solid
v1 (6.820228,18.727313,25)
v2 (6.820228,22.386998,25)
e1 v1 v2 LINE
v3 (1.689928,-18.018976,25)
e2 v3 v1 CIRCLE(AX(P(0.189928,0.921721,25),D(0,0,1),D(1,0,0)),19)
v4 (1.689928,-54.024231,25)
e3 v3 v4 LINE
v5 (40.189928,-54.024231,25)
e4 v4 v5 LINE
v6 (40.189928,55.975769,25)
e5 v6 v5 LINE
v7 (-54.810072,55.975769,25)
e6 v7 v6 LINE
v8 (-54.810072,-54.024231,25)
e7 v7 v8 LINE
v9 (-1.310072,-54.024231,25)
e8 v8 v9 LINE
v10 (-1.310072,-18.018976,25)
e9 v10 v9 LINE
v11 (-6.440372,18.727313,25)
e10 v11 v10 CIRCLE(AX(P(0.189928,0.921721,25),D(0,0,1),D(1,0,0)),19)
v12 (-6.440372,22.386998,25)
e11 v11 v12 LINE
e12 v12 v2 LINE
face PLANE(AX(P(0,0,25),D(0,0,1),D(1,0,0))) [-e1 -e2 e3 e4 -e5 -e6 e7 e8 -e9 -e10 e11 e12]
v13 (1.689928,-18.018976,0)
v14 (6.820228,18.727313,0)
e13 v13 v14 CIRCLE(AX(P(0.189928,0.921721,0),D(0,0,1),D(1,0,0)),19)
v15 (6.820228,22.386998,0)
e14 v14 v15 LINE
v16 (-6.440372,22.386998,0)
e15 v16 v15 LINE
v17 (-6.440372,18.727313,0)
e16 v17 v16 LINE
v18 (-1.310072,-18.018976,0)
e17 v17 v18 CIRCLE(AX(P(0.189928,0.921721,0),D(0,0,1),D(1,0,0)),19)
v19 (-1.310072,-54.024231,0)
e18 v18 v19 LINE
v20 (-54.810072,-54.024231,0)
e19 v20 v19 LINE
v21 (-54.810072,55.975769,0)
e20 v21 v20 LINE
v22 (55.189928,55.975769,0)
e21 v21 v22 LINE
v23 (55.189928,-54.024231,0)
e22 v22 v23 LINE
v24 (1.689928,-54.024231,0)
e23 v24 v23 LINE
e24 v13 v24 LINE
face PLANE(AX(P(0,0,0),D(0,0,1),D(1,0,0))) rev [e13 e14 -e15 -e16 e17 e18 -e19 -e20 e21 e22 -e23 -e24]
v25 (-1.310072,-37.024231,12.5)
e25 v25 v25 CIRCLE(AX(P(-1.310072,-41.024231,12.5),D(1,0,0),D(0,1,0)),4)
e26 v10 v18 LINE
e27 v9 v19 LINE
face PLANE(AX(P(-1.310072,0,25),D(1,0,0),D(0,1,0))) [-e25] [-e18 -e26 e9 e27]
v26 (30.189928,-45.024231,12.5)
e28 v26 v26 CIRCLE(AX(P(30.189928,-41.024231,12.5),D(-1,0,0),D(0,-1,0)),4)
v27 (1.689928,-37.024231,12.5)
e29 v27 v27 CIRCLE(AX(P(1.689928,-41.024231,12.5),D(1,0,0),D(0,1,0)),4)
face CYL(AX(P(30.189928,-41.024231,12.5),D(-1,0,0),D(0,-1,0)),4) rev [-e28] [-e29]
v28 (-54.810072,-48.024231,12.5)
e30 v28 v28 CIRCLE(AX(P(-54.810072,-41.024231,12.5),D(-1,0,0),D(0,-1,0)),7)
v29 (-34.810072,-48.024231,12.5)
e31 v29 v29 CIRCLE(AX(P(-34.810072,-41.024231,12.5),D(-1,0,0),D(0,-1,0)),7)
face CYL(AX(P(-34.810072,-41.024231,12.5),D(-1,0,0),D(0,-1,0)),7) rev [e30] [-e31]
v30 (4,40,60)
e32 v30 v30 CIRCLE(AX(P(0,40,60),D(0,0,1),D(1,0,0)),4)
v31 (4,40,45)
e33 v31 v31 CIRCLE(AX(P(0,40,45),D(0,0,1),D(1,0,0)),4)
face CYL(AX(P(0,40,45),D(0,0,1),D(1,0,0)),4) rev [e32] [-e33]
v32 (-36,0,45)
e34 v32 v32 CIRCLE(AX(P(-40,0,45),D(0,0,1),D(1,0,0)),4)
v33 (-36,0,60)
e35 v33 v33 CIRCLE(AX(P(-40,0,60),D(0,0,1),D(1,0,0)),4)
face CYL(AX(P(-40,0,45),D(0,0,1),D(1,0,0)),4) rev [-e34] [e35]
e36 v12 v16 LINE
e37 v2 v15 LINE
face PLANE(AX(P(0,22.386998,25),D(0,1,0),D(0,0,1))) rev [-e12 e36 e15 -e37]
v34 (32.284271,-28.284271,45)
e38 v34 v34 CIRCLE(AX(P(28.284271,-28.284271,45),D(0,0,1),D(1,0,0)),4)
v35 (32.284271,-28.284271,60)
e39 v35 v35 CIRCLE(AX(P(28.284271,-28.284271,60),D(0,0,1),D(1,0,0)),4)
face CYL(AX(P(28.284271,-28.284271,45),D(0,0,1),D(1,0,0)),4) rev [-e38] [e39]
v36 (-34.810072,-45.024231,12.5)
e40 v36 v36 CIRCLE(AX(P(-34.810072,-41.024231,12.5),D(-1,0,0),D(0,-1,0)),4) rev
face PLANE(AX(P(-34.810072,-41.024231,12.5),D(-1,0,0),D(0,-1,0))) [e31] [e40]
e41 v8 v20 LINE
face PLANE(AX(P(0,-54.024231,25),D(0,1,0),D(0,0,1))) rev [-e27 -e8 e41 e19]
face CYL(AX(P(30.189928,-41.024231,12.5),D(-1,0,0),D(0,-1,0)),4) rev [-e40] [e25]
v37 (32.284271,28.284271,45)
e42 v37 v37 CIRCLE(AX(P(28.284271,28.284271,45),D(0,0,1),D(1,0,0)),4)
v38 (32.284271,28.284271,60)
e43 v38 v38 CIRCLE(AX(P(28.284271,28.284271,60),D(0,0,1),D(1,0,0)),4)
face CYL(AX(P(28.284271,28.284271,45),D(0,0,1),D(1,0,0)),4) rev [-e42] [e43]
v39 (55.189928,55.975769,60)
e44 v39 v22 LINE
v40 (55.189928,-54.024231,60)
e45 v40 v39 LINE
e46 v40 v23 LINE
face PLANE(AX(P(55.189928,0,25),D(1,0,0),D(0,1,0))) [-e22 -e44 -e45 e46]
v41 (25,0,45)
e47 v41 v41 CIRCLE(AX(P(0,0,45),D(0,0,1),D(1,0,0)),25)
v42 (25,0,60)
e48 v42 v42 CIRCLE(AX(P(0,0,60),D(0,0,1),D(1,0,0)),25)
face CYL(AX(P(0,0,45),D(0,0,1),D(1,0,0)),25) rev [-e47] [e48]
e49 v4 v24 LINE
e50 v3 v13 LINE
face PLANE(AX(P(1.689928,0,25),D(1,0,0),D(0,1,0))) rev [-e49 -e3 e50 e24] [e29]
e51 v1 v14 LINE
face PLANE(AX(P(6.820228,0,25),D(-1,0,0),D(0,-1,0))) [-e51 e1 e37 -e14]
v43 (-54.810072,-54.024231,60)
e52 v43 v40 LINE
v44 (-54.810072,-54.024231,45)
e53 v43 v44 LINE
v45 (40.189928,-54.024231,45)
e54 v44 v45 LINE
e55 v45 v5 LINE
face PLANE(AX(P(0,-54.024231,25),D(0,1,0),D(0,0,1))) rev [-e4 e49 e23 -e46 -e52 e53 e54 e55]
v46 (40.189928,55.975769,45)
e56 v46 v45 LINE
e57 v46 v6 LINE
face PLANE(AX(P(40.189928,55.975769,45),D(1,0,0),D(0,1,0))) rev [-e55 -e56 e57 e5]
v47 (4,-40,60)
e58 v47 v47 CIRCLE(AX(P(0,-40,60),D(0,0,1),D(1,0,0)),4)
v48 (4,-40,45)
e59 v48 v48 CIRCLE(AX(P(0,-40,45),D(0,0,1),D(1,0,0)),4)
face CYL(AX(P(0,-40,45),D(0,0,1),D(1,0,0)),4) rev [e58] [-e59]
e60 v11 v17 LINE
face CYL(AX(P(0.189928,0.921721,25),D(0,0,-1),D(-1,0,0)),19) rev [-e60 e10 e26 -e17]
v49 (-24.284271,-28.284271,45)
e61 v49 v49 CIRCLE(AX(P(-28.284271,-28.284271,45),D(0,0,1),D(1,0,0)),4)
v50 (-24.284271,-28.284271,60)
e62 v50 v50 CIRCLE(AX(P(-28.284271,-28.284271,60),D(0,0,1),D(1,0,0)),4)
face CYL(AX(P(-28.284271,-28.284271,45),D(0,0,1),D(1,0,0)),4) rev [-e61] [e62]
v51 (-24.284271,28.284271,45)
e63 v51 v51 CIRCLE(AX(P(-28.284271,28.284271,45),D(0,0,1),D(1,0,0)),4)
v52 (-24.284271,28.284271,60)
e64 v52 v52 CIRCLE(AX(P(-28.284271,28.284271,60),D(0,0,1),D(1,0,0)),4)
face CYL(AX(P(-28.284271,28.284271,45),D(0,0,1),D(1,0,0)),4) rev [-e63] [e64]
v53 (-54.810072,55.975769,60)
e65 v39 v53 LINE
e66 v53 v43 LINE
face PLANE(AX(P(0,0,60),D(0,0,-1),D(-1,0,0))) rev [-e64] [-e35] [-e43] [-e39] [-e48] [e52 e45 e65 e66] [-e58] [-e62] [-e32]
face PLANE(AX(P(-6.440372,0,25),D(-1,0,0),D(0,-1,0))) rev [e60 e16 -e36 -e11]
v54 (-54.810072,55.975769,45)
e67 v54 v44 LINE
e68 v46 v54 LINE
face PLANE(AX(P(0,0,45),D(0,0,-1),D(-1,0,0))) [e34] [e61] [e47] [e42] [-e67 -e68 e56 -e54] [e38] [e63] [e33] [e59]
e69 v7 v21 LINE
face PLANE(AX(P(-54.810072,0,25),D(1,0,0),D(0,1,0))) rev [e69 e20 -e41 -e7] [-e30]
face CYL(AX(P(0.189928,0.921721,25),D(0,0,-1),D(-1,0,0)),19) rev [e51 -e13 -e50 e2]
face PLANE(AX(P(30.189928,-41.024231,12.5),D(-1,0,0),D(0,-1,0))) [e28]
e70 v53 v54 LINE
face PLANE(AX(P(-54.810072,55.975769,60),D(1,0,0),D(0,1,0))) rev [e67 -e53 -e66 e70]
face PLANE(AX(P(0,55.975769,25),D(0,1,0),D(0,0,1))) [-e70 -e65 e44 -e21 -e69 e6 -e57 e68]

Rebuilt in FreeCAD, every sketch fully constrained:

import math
import FreeCAD as App
import Part
import Sketcher

V = App.Vector
Q = App.Units.Quantity


def add_polygon(sketch, points):
    """Adds a closed chain of lines whose ends are joined by coincident constraints."""
    first, n = sketch.GeometryCount, len(points)
    for a, b in zip(points, points[1:] + points[:1]):
        sketch.addGeometry(Part.LineSegment(App.Vector(*a, 0), App.Vector(*b, 0)), False)
    for i in range(n):
        sketch.addConstraint(Sketcher.Constraint("Coincident", first + i, 2, first + (i + 1) % n, 1))

doc = App.newDocument("Part")
body = doc.addObject("PartDesign::Body", "Body")

# Sketch on XY plane
sketch1 = body.newObject("Sketcher::SketchObject", "Sketch")
sketch1.AttachmentSupport = (doc.getObject("XY_Plane"), [""])
sketch1.MapMode = "FlatFace"
sketch1.addGeometry([
    Part.LineSegment(V(6.820228, 22.386998, 0), V(6.820228, 18.727313, 0)),  # 0
    Part.ArcOfCircle(Part.Circle(V(0.189928, 0.921721, 0), V(0, 0, 1), 19), math.radians(-85.471937), math.radians(69.576088)),  # 1
    Part.LineSegment(V(1.689928, -18.018976, 0), V(1.689928, -54.024231, 0)),  # 2
    Part.LineSegment(V(1.689928, -54.024231, 0), V(55.189928, -54.024231, 0)),  # 3
    Part.LineSegment(V(55.189928, -54.024231, 0), V(55.189928, 55.975769, 0)),  # 4
    Part.LineSegment(V(55.189928, 55.975769, 0), V(-54.810072, 55.975769, 0)),  # 5
    Part.LineSegment(V(-54.810072, 55.975769, 0), V(-54.810072, -54.024231, 0)),  # 6
    Part.LineSegment(V(-54.810072, -54.024231, 0), V(-1.310072, -54.024231, 0)),  # 7
    Part.LineSegment(V(-1.310072, -54.024231, 0), V(-1.310072, -18.018976, 0)),  # 8
    Part.ArcOfCircle(Part.Circle(V(0.189928, 0.921721, 0), V(0, 0, 1), 19), math.radians(110.423912), math.radians(265.471937)),  # 9
    Part.LineSegment(V(-6.440372, 18.727313, 0), V(-6.440372, 22.386998, 0)),  # 10
    Part.LineSegment(V(-6.440372, 22.386998, 0), V(6.820228, 22.386998, 0)),  # 11
], False)
sketch1.addConstraint([
    Sketcher.Constraint("Coincident", 0, 2, 1, 2),
    Sketcher.Constraint("Coincident", 1, 1, 2, 1),
    Sketcher.Constraint("Coincident", 2, 2, 3, 1),
    Sketcher.Constraint("Coincident", 3, 2, 4, 1),
    Sketcher.Constraint("Coincident", 4, 2, 5, 1),
    Sketcher.Constraint("Coincident", 5, 2, 6, 1),
    Sketcher.Constraint("Coincident", 6, 2, 7, 1),
    Sketcher.Constraint("Coincident", 7, 2, 8, 1),
    Sketcher.Constraint("Coincident", 8, 2, 9, 2),
    Sketcher.Constraint("Coincident", 9, 1, 10, 1),
    Sketcher.Constraint("Coincident", 10, 2, 11, 1),
    Sketcher.Constraint("Coincident", 11, 2, 0, 1),
    Sketcher.Constraint("Vertical", 0),
    Sketcher.Constraint("Vertical", 2),
    Sketcher.Constraint("Horizontal", 3),
    Sketcher.Constraint("Vertical", 4),
    Sketcher.Constraint("Horizontal", 5),
    Sketcher.Constraint("Vertical", 6),
    Sketcher.Constraint("Horizontal", 7),
    Sketcher.Constraint("Vertical", 8),
    Sketcher.Constraint("Vertical", 10),
    Sketcher.Constraint("Horizontal", 11),
    Sketcher.Constraint("Coincident", 9, 3, 1, 3),
    Sketcher.Constraint("Equal", 1, 9),
    Sketcher.Constraint("Horizontal", 3, 2, 6, 2),
    Sketcher.Constraint("Horizontal", 1, 1, 8, 2),
    Sketcher.Constraint("Horizontal", 0, 2, 9, 1),
    Sketcher.Constraint("Equal", 3, 7),
    Sketcher.Constraint("Equal", 5, 4),
    Sketcher.Constraint("Radius", 1, Q("19 mm")),
    Sketcher.Constraint("DistanceX", 5, 2, 5, 1, Q("110 mm")),
    Sketcher.Constraint("DistanceX", 3, 1, 3, 2, Q("53.5 mm")),
    Sketcher.Constraint("DistanceX", 11, 1, 11, 2, Q("13.260601 mm")),
    Sketcher.Constraint("DistanceY", -1, 1, 10, 2, Q("22.386998 mm")),
    Sketcher.Constraint("DistanceY", 0, 2, 0, 1, Q("3.659685 mm")),
    Sketcher.Constraint("DistanceY", 2, 2, 2, 1, Q("36.005255 mm")),
    Sketcher.Constraint("DistanceX", -1, 1, 1, 3, Q("0.189928 mm")),
])
pad1 = body.newObject("PartDesign::Pad", "Pad")
pad1.Profile = sketch1
pad1.Length = 25

# Sketch on YZ plane
sketch2 = body.newObject("Sketcher::SketchObject", "Sketch001")
sketch2.AttachmentSupport = (doc.getObject("YZ_Plane"), [""])
sketch2.MapMode = "FlatFace"
sketch2.AttachmentOffset = App.Placement(V(0, 0, -54.810072), App.Rotation())
sketch2.addGeometry(Part.Circle(V(-41.024231, 12.5, 0), V(0, 0, 1), 4), False)
sketch2.addConstraint([
    Sketcher.Constraint("Diameter", 0, Q("8 mm")),
    Sketcher.Constraint("DistanceY", -1, 1, 0, 3, Q("12.5 mm")),
    Sketcher.Constraint("DistanceX", 0, 3, -1, 1, Q("41.024231 mm")),
])
pocket1 = body.newObject("PartDesign::Pocket", "Pocket")
pocket1.Profile = sketch2
pocket1.Length = 85
pocket1.Reversed = True

# Sketch on YZ plane
sketch3 = body.newObject("Sketcher::SketchObject", "Sketch002")
sketch3.AttachmentSupport = (doc.getObject("YZ_Plane"), [""])
sketch3.MapMode = "FlatFace"
sketch3.AttachmentOffset = App.Placement(V(0, 0, -54.810072), App.Rotation())
sketch3.addGeometry(Part.Circle(V(-41.024231, 12.5, 0), V(0, 0, 1), 7), False)
sketch3.addConstraint([
    Sketcher.Constraint("Diameter", 0, Q("14 mm")),
    Sketcher.Constraint("DistanceY", -1, 1, 0, 3, Q("12.5 mm")),
    Sketcher.Constraint("DistanceX", 0, 3, -1, 1, Q("41.024231 mm")),
])
pocket2 = body.newObject("PartDesign::Pocket", "Pocket001")
pocket2.Profile = sketch3
pocket2.Length = 20
pocket2.Reversed = True

# Sketch on XY plane
sketch4 = body.newObject("Sketcher::SketchObject", "Sketch003")
sketch4.AttachmentSupport = (doc.getObject("XY_Plane"), [""])
sketch4.MapMode = "FlatFace"
sketch4.AttachmentOffset = App.Placement(V(0, 0, 25), App.Rotation())
add_polygon(sketch4, [(40.189928, 55.975769), (40.189928, -54.024231), (55.189928, -54.024231), (55.189928, 55.975769)])  # lines 0-3
sketch4.addConstraint([
    Sketcher.Constraint("Vertical", 0),
    Sketcher.Constraint("Horizontal", 1),
    Sketcher.Constraint("Vertical", 2),
    Sketcher.Constraint("Horizontal", 3),
    Sketcher.Constraint("DistanceX", 1, 1, 1, 2, Q("15 mm")),
    Sketcher.Constraint("DistanceY", 0, 2, 0, 1, Q("110 mm")),
    Sketcher.Constraint("DistanceX", -1, 1, 0, 2, Q("40.189928 mm")),
    Sketcher.Constraint("DistanceY", 0, 2, -1, 1, Q("54.024231 mm")),
])
pad2 = body.newObject("PartDesign::Pad", "Pad001")
pad2.Profile = sketch4
pad2.Length = 20

# Sketch on XY plane
sketch5 = body.newObject("Sketcher::SketchObject", "Sketch004")
sketch5.AttachmentSupport = (doc.getObject("XY_Plane"), [""])
sketch5.MapMode = "FlatFace"
sketch5.AttachmentOffset = App.Placement(V(0, 0, 45), App.Rotation())
add_polygon(sketch5, [(-54.810072, 55.975769), (-54.810072, -54.024231), (55.189928, -54.024231), (55.189928, 55.975769)])  # lines 0-3
sketch5.addConstraint([
    Sketcher.Constraint("Vertical", 0),
    Sketcher.Constraint("Horizontal", 1),
    Sketcher.Constraint("Vertical", 2),
    Sketcher.Constraint("Horizontal", 3),
    Sketcher.Constraint("Equal", 3, 0),
    Sketcher.Constraint("DistanceX", 1, 1, 1, 2, Q("110 mm")),
    Sketcher.Constraint("DistanceX", 0, 2, -1, 1, Q("54.810072 mm")),
    Sketcher.Constraint("DistanceY", 0, 2, -1, 1, Q("54.024231 mm")),
])
pad3 = body.newObject("PartDesign::Pad", "Pad002")
pad3.Profile = sketch5
pad3.Length = 15

# Sketch on XY plane
sketch6 = body.newObject("Sketcher::SketchObject", "Sketch005")
sketch6.AttachmentSupport = (doc.getObject("XY_Plane"), [""])
sketch6.MapMode = "FlatFace"
sketch6.AttachmentOffset = App.Placement(V(0, 0, 60), App.Rotation())
sketch6.addGeometry([
    Part.Circle(V(0, 0, 0), V(0, 0, 1), 25),  # 0
    Part.Circle(V(0, 40, 0), V(0, 0, 1), 4),  # 1
    Part.Circle(V(-40, 0, 0), V(0, 0, 1), 4),  # 2
    Part.Circle(V(0, -40, 0), V(0, 0, 1), 4),  # 3
    Part.Circle(V(-28.284271, 28.284271, 0), V(0, 0, 1), 4),  # 4
    Part.Circle(V(28.284271, 28.284271, 0), V(0, 0, 1), 4),  # 5
    Part.Circle(V(28.284271, -28.284271, 0), V(0, 0, 1), 4),  # 6
    Part.Circle(V(-28.284271, -28.284271, 0), V(0, 0, 1), 4),  # 7
], False)
sketch6.addConstraint([
    Sketcher.Constraint("Coincident", 0, 3, -1, 1),
    Sketcher.Constraint("Equal", 1, 2),
    Sketcher.Constraint("Equal", 2, 3),
    Sketcher.Constraint("Equal", 3, 4),
    Sketcher.Constraint("Equal", 4, 5),
    Sketcher.Constraint("Equal", 5, 6),
    Sketcher.Constraint("Equal", 6, 7),
    Sketcher.Constraint("Symmetric", 1, 3, 3, 3, -1, 1),
    Sketcher.Constraint("Symmetric", 4, 3, 6, 3, -1, 1),
    Sketcher.Constraint("Symmetric", 5, 3, 7, 3, -1, 1),
    Sketcher.Constraint("Symmetric", 4, 3, 5, 3, -2),
    Sketcher.Constraint("PointOnObject", 1, 3, -2),
    Sketcher.Constraint("PointOnObject", 2, 3, -1),
    Sketcher.Constraint("Diameter", 0, Q("50 mm")),
    Sketcher.Constraint("Diameter", 1, Q("8 mm")),
    Sketcher.Constraint("DistanceY", -1, 1, 1, 3, Q("40 mm")),
    Sketcher.Constraint("DistanceX", 2, 3, -1, 1, Q("40 mm")),
    Sketcher.Constraint("DistanceX", 4, 3, -1, 1, Q("28.284271 mm")),
    Sketcher.Constraint("DistanceY", -1, 1, 4, 3, Q("28.284271 mm")),
])
pocket3 = body.newObject("PartDesign::Pocket", "Pocket002")
pocket3.Profile = sketch6
pocket3.Length = 15

doc.recompute()
